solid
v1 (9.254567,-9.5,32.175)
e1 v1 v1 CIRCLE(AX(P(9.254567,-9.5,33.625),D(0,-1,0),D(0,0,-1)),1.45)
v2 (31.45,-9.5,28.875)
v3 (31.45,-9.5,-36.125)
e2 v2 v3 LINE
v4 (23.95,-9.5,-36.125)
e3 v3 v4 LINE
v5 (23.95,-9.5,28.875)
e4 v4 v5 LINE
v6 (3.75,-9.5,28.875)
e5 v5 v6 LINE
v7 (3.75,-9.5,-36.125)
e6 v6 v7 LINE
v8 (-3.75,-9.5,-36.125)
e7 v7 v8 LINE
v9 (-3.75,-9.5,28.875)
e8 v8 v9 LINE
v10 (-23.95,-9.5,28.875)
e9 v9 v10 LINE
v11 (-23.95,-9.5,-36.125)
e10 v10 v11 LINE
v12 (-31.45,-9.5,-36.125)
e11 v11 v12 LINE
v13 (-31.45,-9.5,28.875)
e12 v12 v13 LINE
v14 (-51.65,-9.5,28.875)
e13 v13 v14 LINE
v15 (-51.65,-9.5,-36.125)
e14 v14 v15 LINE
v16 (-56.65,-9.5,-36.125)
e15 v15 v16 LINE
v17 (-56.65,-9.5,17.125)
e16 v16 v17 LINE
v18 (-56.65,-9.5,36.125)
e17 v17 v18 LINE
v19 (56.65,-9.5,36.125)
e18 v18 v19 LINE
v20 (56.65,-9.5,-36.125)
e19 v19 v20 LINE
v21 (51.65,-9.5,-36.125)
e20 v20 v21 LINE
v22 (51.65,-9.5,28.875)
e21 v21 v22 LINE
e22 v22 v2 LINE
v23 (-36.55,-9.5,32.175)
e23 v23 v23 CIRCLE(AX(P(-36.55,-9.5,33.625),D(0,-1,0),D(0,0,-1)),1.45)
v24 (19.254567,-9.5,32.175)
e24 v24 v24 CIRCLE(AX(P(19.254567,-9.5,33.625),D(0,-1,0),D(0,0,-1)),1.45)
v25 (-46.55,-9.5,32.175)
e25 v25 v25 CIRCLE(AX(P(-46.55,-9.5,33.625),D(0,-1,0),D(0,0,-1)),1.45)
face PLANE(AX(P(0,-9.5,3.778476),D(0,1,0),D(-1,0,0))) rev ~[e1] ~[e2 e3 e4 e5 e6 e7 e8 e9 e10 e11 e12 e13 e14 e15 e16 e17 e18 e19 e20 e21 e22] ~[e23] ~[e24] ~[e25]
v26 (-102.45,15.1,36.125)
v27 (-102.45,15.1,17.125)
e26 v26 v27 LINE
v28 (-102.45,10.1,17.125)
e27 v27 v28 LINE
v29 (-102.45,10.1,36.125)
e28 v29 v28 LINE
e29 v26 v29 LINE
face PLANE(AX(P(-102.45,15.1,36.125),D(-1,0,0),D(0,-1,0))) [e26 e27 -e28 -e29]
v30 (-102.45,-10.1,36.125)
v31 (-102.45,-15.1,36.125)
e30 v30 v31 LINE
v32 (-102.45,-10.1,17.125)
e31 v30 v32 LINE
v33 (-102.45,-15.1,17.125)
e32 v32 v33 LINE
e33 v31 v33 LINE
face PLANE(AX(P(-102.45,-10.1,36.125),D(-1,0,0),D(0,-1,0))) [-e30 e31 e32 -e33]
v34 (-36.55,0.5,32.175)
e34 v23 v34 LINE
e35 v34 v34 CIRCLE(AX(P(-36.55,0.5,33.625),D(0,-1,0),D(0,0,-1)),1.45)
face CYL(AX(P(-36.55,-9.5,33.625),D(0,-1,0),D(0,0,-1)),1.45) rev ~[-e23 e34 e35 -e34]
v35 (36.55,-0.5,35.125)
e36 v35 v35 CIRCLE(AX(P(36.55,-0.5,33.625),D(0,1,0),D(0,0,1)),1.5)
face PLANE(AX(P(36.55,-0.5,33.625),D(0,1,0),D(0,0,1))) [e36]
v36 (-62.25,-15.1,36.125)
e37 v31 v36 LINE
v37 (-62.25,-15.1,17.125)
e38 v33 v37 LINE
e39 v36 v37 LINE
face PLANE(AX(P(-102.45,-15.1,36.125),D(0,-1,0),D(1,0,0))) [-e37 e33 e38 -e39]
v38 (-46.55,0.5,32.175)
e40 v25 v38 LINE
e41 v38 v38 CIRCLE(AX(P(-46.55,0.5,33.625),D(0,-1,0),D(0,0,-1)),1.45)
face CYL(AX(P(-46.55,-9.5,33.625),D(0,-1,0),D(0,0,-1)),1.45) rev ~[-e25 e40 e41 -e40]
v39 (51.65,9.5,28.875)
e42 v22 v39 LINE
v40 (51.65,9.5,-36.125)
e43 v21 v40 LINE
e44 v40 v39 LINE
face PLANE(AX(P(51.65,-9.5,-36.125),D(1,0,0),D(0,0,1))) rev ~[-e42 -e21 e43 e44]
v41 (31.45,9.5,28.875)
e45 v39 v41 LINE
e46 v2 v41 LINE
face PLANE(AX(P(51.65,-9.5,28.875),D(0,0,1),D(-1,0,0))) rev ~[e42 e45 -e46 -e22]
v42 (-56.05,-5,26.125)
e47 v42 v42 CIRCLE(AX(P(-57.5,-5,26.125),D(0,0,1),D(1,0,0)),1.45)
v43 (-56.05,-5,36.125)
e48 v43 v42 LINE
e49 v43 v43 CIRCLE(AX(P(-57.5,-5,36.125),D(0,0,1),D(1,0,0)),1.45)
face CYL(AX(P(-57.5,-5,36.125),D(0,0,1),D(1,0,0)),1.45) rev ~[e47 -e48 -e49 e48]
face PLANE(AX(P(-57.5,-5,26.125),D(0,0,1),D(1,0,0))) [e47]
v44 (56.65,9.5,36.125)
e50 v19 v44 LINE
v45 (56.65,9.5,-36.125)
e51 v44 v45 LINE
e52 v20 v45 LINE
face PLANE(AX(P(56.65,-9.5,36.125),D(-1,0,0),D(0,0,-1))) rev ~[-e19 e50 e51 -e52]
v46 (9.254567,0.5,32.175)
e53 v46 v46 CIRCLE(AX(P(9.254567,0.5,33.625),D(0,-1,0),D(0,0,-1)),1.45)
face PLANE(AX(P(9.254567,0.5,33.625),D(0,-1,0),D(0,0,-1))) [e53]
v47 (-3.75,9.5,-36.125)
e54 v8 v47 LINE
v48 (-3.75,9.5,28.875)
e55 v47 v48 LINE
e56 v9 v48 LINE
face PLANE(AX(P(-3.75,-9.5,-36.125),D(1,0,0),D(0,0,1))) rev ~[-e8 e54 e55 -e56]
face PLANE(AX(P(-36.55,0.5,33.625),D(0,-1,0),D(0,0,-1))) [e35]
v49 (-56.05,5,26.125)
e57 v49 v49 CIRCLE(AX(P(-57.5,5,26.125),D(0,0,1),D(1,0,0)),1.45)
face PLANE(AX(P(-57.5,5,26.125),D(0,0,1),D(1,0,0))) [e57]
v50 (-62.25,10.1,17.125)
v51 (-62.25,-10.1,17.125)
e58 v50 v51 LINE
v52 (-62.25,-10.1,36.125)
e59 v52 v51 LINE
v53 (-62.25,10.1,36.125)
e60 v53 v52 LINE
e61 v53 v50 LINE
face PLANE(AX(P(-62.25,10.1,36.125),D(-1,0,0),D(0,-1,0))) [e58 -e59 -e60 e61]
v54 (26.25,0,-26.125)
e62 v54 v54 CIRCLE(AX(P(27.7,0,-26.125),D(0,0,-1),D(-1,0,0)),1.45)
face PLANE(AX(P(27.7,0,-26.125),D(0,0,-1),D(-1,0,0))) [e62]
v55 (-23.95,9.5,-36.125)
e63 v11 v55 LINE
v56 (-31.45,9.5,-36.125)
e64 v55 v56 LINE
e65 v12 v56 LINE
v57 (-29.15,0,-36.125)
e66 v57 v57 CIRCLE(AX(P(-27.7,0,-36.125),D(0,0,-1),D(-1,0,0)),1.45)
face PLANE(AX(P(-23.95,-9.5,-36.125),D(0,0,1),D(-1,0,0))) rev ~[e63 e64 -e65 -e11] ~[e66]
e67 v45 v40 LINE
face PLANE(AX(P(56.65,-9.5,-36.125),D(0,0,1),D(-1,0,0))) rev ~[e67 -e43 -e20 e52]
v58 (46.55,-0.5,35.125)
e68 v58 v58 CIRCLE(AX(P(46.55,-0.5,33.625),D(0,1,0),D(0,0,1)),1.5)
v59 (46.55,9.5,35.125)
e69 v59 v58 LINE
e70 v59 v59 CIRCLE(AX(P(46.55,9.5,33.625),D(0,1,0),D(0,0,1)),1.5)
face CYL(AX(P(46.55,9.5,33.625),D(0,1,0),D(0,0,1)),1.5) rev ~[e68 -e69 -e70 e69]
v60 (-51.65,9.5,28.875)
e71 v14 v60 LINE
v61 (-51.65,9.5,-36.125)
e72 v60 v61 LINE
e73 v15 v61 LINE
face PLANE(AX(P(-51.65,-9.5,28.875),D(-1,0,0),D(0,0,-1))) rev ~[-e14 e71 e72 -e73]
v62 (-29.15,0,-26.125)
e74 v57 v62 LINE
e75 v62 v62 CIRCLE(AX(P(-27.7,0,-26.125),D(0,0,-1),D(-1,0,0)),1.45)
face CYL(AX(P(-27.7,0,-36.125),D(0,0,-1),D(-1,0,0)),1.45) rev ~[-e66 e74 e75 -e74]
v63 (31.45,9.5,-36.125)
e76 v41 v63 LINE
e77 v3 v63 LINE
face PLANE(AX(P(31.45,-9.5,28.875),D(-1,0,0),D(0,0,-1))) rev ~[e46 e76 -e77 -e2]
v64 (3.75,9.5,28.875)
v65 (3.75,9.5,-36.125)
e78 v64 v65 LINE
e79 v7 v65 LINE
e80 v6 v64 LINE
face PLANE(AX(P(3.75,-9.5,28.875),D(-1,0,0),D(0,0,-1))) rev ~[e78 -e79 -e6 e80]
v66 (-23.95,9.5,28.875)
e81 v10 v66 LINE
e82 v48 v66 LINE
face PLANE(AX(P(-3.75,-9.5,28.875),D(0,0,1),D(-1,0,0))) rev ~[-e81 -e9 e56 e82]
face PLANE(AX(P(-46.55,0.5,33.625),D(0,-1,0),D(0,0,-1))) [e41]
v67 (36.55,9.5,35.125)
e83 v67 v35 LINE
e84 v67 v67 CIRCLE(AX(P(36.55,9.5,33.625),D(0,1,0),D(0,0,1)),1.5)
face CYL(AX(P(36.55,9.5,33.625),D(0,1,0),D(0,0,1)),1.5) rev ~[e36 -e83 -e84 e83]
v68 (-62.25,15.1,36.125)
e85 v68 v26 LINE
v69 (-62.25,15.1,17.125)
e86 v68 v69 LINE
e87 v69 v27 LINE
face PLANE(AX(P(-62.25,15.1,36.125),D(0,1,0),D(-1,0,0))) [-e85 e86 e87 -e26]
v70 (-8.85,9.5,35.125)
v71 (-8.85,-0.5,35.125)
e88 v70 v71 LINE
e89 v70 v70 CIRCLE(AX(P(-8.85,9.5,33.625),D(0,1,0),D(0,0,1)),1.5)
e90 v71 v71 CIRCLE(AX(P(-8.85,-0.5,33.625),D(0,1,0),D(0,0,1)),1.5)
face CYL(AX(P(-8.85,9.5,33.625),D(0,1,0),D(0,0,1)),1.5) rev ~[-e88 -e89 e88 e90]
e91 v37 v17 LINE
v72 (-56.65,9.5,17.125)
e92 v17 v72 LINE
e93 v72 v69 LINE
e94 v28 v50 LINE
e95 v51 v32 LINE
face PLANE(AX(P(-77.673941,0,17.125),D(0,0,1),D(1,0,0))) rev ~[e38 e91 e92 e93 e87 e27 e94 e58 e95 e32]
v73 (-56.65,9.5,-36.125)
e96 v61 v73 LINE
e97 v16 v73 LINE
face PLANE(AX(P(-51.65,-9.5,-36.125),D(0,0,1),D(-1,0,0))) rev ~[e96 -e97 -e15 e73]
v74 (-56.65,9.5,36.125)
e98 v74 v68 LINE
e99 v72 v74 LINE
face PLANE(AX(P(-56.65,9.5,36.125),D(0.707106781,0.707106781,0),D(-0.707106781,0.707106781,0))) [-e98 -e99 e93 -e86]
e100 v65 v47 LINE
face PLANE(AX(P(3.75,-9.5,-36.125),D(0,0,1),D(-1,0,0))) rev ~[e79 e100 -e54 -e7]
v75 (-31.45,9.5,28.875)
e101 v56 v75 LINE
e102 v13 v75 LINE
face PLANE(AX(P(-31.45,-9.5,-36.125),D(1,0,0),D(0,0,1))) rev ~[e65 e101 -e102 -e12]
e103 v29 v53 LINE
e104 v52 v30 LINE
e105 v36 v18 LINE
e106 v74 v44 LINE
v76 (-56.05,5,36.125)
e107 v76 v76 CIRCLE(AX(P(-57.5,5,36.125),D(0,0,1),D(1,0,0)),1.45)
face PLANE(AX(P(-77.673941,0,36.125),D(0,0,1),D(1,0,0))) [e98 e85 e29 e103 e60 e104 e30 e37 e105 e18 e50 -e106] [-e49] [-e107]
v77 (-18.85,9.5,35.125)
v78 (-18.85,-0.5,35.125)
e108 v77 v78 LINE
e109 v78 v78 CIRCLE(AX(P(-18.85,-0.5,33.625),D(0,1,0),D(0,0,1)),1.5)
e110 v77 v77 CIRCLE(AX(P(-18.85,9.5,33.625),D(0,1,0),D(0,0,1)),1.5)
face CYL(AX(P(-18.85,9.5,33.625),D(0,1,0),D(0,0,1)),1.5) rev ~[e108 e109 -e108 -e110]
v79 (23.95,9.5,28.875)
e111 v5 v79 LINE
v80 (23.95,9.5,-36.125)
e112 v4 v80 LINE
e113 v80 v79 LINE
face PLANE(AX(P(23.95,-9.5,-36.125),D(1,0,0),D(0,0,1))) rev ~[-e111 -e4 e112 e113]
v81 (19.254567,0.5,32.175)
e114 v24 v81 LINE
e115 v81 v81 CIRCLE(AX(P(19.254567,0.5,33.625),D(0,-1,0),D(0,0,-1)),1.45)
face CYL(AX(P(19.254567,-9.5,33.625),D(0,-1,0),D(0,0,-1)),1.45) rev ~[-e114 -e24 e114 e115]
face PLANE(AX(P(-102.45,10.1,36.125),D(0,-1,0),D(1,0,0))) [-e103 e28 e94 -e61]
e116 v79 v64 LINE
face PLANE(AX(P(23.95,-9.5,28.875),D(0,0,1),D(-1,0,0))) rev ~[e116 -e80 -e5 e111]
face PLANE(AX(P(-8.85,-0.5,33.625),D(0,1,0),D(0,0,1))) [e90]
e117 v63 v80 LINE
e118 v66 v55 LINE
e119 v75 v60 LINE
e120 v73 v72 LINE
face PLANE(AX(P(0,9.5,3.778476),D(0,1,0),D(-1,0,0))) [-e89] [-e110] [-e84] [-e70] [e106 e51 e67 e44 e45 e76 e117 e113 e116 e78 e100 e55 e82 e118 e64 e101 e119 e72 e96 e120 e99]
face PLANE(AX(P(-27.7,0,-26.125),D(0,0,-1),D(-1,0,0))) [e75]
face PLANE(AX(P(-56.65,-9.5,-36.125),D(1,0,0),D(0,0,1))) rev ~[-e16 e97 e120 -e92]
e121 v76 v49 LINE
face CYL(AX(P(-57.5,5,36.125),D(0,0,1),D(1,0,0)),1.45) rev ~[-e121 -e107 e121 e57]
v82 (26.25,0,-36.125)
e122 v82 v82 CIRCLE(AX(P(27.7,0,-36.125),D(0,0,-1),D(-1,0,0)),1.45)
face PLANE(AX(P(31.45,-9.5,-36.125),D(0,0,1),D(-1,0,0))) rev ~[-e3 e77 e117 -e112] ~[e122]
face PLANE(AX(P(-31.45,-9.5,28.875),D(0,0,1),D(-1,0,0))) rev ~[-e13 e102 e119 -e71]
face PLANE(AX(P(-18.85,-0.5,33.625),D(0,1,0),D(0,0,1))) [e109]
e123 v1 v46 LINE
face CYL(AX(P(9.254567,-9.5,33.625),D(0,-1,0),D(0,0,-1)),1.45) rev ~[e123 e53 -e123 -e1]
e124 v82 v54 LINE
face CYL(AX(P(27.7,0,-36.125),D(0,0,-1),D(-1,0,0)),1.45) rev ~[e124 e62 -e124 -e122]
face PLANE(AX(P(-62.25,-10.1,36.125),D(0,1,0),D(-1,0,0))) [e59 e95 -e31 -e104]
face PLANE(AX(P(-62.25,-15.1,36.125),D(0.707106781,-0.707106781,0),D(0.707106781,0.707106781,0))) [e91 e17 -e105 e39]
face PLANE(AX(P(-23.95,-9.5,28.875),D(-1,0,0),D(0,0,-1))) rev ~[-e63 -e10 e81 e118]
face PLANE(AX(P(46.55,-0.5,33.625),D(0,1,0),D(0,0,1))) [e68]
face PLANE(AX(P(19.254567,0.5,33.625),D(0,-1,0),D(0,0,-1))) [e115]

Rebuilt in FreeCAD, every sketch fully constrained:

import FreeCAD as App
import Part
import Sketcher

V = App.Vector
Q = App.Units.Quantity


def add_polygon(sketch, points):
    """Adds a closed chain of lines whose ends are joined by coincident constraints."""
    first, n = sketch.GeometryCount, len(points)
    for a, b in zip(points, points[1:] + points[:1]):
        sketch.addGeometry(Part.LineSegment(App.Vector(*a, 0), App.Vector(*b, 0)), False)
    for i in range(n):
        sketch.addConstraint(Sketcher.Constraint("Coincident", first + i, 2, first + (i + 1) % n, 1))

doc = App.newDocument("Part")
params = doc.addObject("Spreadsheet::Sheet", "Params")
for row, (alias, value) in enumerate([
    ("sketch1_width", "5 mm"),
    ("sketch1_height", "65 mm"),
    ("sketch1_width2", "20.2 mm"),
    ("sketch1_width3", "7.5 mm"),
    ("sketch1_height2", "72.25 mm"),
    ("pad1_length", "9.5 mm"),
    ("pad1_length2", "9.5 mm"),
    ("sketch2_height", "5 mm"),
    ("sketch2_height2", "19 mm"),
    ("sketch2_width", "40.2 mm"),
    ("sketch2_height3", "20.2 mm"),
    ("pad2_length", "19 mm"),
    ("sketch3_diameter", "2.9 mm"),
    ("pocket1_length", "10 mm"),
    ("sketch4_diameter", "3 mm"),
    ("pocket2_length", "10 mm"),
    ("sketch5_diameter", "2.9 mm"),
    ("pocket3_length", "10 mm"),
    ("sketch6_diameter", "2.9 mm"),
    ("pocket4_length", "10 mm"),
], start=1):
    params.set(f"A{row}", alias)
    params.set(f"B{row}", "=" + value)
    params.setAlias(f"B{row}", alias)

body = doc.addObject("PartDesign::Body", "Body")

sketch1 = body.newObject("Sketcher::SketchObject", "Sketch")
sketch1.AttachmentSupport = (doc.getObject("XZ_Plane"), [""])
sketch1.MapMode = "FlatFace"
add_polygon(sketch1, [(24, 29), (4, 29), (4, -36), (-4, -36), (-4, 29), (-24, 29), (-24, -36), (-31, -36), (-31, 29), (-52, 29), (-52, -36), (-57, -36), (-57, 36), (57, 36), (57, -36), (52, -36), (52, 29), (31, 29), (31, -36), (24, -36)])
sketch1.addConstraint([
    Sketcher.Constraint("Horizontal", 0),
    Sketcher.Constraint("Vertical", 1),
    Sketcher.Constraint("Horizontal", 2),
    Sketcher.Constraint("Vertical", 3),
    Sketcher.Constraint("Horizontal", 4),
    Sketcher.Constraint("Vertical", 5),
    Sketcher.Constraint("Horizontal", 6),
    Sketcher.Constraint("Vertical", 7),
    Sketcher.Constraint("Horizontal", 8),
    Sketcher.Constraint("Vertical", 9),
    Sketcher.Constraint("Horizontal", 10),
    Sketcher.Constraint("Vertical", 11),
    Sketcher.Constraint("Horizontal", 12),
    Sketcher.Constraint("Vertical", 13),
    Sketcher.Constraint("Horizontal", 14),
    Sketcher.Constraint("Vertical", 15),
    Sketcher.Constraint("Horizontal", 16),
    Sketcher.Constraint("Vertical", 17),
    Sketcher.Constraint("Horizontal", 18),
    Sketcher.Constraint("Vertical", 19),
    Sketcher.Constraint("Symmetric", 10, 2, 12, 2, -1, 1),
    Sketcher.Constraint("Symmetric", 0, 2, 3, 2, -2),
    Sketcher.Constraint("Symmetric", 9, 2, 14, 2, -2),
    Sketcher.Constraint("Symmetric", 7, 2, 16, 2, -2),
    Sketcher.Constraint("Symmetric", 5, 2, 18, 2, -2),
    Sketcher.Constraint("Horizontal", 2, 2, 5, 2),
    Sketcher.Constraint("Horizontal", 4, 2, 7, 2),
    Sketcher.Constraint("Horizontal", 6, 2, 9, 2),
    Sketcher.Constraint("Equal", 2, 6),
    Sketcher.Constraint("Equal", 4, 8),
    Sketcher.Constraint("DistanceX", 10, 2, 10, 1, Q("5 mm")),
    Sketcher.Constraint("DistanceY", 1, 2, 1, 1, Q("65 mm")),
    Sketcher.Constraint("DistanceX", 0, 2, 0, 1, Q("20.2 mm")),
    Sketcher.Constraint("DistanceX", 2, 2, 2, 1, Q("7.5 mm")),
    Sketcher.Constraint("DistanceY", 11, 1, 11, 2, Q("72.25 mm")),
])
sketch1.setExpression("Constraints[50]", "Params.sketch1_width")
sketch1.setExpression("Constraints[51]", "Params.sketch1_height")
sketch1.setExpression("Constraints[52]", "Params.sketch1_width2")
sketch1.setExpression("Constraints[53]", "Params.sketch1_width3")
sketch1.setExpression("Constraints[54]", "Params.sketch1_height2")
pad1 = body.newObject("PartDesign::Pad", "Pad")
pad1.Profile = sketch1
pad1.Type = "TwoLengths"
pad1.setExpression("Length", "Params.pad1_length")
pad1.setExpression("Length2", "Params.pad1_length2")
pad1.Reversed = True

sketch2 = body.newObject("Sketcher::SketchObject", "Sketch001")
sketch2.AttachmentSupport = (doc.getObject("XY_Plane"), [""])
sketch2.MapMode = "FlatFace"
sketch2.AttachmentOffset = App.Placement(V(0, 0, 36.125), App.Rotation())
add_polygon(sketch2, [(-57, 10), (-62, 15), (-102, 15), (-102, 10), (-62, 10), (-62, -10), (-102, -10), (-102, -15), (-62, -15), (-57, -10)])
sketch2.addConstraint([
    Sketcher.Constraint("Horizontal", 1),
    Sketcher.Constraint("Vertical", 2),
    Sketcher.Constraint("Horizontal", 3),
    Sketcher.Constraint("Vertical", 4),
    Sketcher.Constraint("Horizontal", 5),
    Sketcher.Constraint("Vertical", 6),
    Sketcher.Constraint("Horizontal", 7),
    Sketcher.Constraint("Vertical", 9),
    Sketcher.Constraint("Symmetric", 2, 2, 5, 2, -1),
    Sketcher.Constraint("Symmetric", 0, 2, 7, 2, -1),
    Sketcher.Constraint("Perpendicular", 0, 8),
    Sketcher.Constraint("Vertical", 0, 2, 3, 2),
    Sketcher.Constraint("Equal", 0, 8),
    Sketcher.Constraint("DistanceY", 2, 2, 2, 1, Q("5 mm")),
    Sketcher.Constraint("DistanceY", 9, 1, 9, 2, Q("19 mm")),
    Sketcher.Constraint("DistanceX", 1, 2, 1, 1, Q("40.2 mm")),
    Sketcher.Constraint("DistanceY", 4, 2, 4, 1, Q("20.2 mm")),
    Sketcher.Constraint("DistanceX", 0, 2, -1, 1, Q("62.25 mm")),
])
sketch2.setExpression("Constraints[23]", "Params.sketch2_height")
sketch2.setExpression("Constraints[24]", "Params.sketch2_height2")
sketch2.setExpression("Constraints[25]", "Params.sketch2_width")
sketch2.setExpression("Constraints[26]", "Params.sketch2_height3")
pad2 = body.newObject("PartDesign::Pad", "Pad001")
pad2.Profile = sketch2
pad2.setExpression("Length", "Params.pad2_length")
pad2.Reversed = True

sketch3 = body.newObject("Sketcher::SketchObject", "Sketch002")
sketch3.AttachmentSupport = (doc.getObject("XY_Plane"), [""])
sketch3.MapMode = "FlatFace"
sketch3.AttachmentOffset = App.Placement(V(0, 0, 36.125), App.Rotation())
sketch3.addGeometry([
    Part.Circle(V(-57.5, 5, 0), V(0, 0, 1), 1.4),
    Part.Circle(V(-57.5, -5, 0), V(0, 0, 1), 1.4),
], False)
sketch3.addConstraint([
    Sketcher.Constraint("Equal", 0, 1),
    Sketcher.Constraint("Symmetric", 0, 3, 1, 3, -1),
    Sketcher.Constraint("Diameter", 0, Q("2.9 mm")),
    Sketcher.Constraint("DistanceY", -1, 1, 0, 3, Q("5 mm")),
    Sketcher.Constraint("DistanceX", 0, 3, -1, 1, Q("57.5 mm")),
])
sketch3.setExpression("Constraints[2]", "Params.sketch3_diameter")
pocket1 = body.newObject("PartDesign::Pocket", "Pocket")
pocket1.Profile = sketch3
pocket1.setExpression("Length", "Params.pocket1_length")

sketch4 = body.newObject("Sketcher::SketchObject", "Sketch003")
sketch4.AttachmentSupport = (doc.getObject("XZ_Plane"), [""])
sketch4.MapMode = "FlatFace"
sketch4.AttachmentOffset = App.Placement(V(0, 0, -9.5), App.Rotation())
sketch4.addGeometry([
    Part.Circle(V(46.5, 33.6, 0), V(0, 0, 1), 1.5),
    Part.Circle(V(36.5, 33.6, 0), V(0, 0, 1), 1.5),
    Part.Circle(V(-8.8, 33.6, 0), V(0, 0, 1), 1.5),
    Part.Circle(V(-18.9, 33.6, 0), V(0, 0, 1), 1.5),
], False)
sketch4.addConstraint([
    Sketcher.Constraint("Equal", 0, 1),
    Sketcher.Constraint("Equal", 1, 2),
    Sketcher.Constraint("Equal", 2, 3),
    Sketcher.Constraint("Horizontal", 0, 3, 1, 3),
    Sketcher.Constraint("Horizontal", 1, 3, 2, 3),
    Sketcher.Constraint("Horizontal", 2, 3, 3, 3),
    Sketcher.Constraint("Diameter", 0, Q("3 mm")),
    Sketcher.Constraint("DistanceX", 1, 3, 0, 3, Q("10 mm")),
    Sketcher.Constraint("DistanceX", 3, 3, 2, 3, Q("10 mm")),
    Sketcher.Constraint("DistanceX", 2, 3, 1, 3, Q("45.4 mm")),
    Sketcher.Constraint("DistanceX", -1, 1, 0, 3, Q("46.55 mm")),
    Sketcher.Constraint("DistanceY", -1, 1, 0, 3, Q("33.625 mm")),
])
sketch4.setExpression("Constraints[6]", "Params.sketch4_diameter")
pocket2 = body.newObject("PartDesign::Pocket", "Pocket001")
pocket2.Profile = sketch4
pocket2.setExpression("Length", "Params.pocket2_length")
pocket2.Reversed = True

sketch5 = body.newObject("Sketcher::SketchObject", "Sketch004")
sketch5.AttachmentSupport = (doc.getObject("XZ_Plane"), [""])
sketch5.MapMode = "FlatFace"
sketch5.AttachmentOffset = App.Placement(V(0, 0, 9.5), App.Rotation())
sketch5.addGeometry([
    Part.Circle(V(-46.5, 33.6, 0), V(0, 0, 1), 1.4),
    Part.Circle(V(-36.5, 33.6, 0), V(0, 0, 1), 1.4),
    Part.Circle(V(9.3, 33.6, 0), V(0, 0, 1), 1.4),
    Part.Circle(V(19.3, 33.6, 0), V(0, 0, 1), 1.4),
], False)
sketch5.addConstraint([
    Sketcher.Constraint("Equal", 0, 1),
    Sketcher.Constraint("Equal", 1, 2),
    Sketcher.Constraint("Equal", 2, 3),
    Sketcher.Constraint("Horizontal", 0, 3, 1, 3),
    Sketcher.Constraint("Horizontal", 1, 3, 2, 3),
    Sketcher.Constraint("Horizontal", 2, 3, 3, 3),
    Sketcher.Constraint("Diameter", 0, Q("2.9 mm")),
    Sketcher.Constraint("DistanceX", 0, 3, 1, 3, Q("10 mm")),
    Sketcher.Constraint("DistanceX", 2, 3, 3, 3, Q("10 mm")),
    Sketcher.Constraint("DistanceX", 0, 3, -1, 1, Q("46.55 mm")),
    Sketcher.Constraint("DistanceY", -1, 1, 0, 3, Q("33.625 mm")),
    Sketcher.Constraint("DistanceX", -1, 1, 2, 3, Q("9.254567 mm")),
])
sketch5.setExpression("Constraints[6]", "Params.sketch5_diameter")
pocket3 = body.newObject("PartDesign::Pocket", "Pocket002")
pocket3.Profile = sketch5
pocket3.setExpression("Length", "Params.pocket3_length")

sketch6 = body.newObject("Sketcher::SketchObject", "Sketch005")
sketch6.AttachmentSupport = (doc.getObject("XY_Plane"), [""])
sketch6.MapMode = "FlatFace"
sketch6.AttachmentOffset = App.Placement(V(0, 0, -36.125), App.Rotation())
sketch6.addGeometry([
    Part.Circle(V(-27.7, 0, 0), V(0, 0, 1), 1.4),
    Part.Circle(V(27.7, 0, 0), V(0, 0, 1), 1.4),
], False)
sketch6.addConstraint([
    Sketcher.Constraint("Equal", 0, 1),
    Sketcher.Constraint("Symmetric", 0, 3, 1, 3, -1, 1),
    Sketcher.Constraint("PointOnObject", 0, 3, -1),
    Sketcher.Constraint("Diameter", 0, Q("2.9 mm")),
    Sketcher.Constraint("DistanceX", 0, 3, -1, 1, Q("27.7 mm")),
])
sketch6.setExpression("Constraints[3]", "Params.sketch6_diameter")
pocket4 = body.newObject("PartDesign::Pocket", "Pocket003")
pocket4.Profile = sketch6
pocket4.setExpression("Length", "Params.pocket4_length")
pocket4.Reversed = True

doc.recompute()
